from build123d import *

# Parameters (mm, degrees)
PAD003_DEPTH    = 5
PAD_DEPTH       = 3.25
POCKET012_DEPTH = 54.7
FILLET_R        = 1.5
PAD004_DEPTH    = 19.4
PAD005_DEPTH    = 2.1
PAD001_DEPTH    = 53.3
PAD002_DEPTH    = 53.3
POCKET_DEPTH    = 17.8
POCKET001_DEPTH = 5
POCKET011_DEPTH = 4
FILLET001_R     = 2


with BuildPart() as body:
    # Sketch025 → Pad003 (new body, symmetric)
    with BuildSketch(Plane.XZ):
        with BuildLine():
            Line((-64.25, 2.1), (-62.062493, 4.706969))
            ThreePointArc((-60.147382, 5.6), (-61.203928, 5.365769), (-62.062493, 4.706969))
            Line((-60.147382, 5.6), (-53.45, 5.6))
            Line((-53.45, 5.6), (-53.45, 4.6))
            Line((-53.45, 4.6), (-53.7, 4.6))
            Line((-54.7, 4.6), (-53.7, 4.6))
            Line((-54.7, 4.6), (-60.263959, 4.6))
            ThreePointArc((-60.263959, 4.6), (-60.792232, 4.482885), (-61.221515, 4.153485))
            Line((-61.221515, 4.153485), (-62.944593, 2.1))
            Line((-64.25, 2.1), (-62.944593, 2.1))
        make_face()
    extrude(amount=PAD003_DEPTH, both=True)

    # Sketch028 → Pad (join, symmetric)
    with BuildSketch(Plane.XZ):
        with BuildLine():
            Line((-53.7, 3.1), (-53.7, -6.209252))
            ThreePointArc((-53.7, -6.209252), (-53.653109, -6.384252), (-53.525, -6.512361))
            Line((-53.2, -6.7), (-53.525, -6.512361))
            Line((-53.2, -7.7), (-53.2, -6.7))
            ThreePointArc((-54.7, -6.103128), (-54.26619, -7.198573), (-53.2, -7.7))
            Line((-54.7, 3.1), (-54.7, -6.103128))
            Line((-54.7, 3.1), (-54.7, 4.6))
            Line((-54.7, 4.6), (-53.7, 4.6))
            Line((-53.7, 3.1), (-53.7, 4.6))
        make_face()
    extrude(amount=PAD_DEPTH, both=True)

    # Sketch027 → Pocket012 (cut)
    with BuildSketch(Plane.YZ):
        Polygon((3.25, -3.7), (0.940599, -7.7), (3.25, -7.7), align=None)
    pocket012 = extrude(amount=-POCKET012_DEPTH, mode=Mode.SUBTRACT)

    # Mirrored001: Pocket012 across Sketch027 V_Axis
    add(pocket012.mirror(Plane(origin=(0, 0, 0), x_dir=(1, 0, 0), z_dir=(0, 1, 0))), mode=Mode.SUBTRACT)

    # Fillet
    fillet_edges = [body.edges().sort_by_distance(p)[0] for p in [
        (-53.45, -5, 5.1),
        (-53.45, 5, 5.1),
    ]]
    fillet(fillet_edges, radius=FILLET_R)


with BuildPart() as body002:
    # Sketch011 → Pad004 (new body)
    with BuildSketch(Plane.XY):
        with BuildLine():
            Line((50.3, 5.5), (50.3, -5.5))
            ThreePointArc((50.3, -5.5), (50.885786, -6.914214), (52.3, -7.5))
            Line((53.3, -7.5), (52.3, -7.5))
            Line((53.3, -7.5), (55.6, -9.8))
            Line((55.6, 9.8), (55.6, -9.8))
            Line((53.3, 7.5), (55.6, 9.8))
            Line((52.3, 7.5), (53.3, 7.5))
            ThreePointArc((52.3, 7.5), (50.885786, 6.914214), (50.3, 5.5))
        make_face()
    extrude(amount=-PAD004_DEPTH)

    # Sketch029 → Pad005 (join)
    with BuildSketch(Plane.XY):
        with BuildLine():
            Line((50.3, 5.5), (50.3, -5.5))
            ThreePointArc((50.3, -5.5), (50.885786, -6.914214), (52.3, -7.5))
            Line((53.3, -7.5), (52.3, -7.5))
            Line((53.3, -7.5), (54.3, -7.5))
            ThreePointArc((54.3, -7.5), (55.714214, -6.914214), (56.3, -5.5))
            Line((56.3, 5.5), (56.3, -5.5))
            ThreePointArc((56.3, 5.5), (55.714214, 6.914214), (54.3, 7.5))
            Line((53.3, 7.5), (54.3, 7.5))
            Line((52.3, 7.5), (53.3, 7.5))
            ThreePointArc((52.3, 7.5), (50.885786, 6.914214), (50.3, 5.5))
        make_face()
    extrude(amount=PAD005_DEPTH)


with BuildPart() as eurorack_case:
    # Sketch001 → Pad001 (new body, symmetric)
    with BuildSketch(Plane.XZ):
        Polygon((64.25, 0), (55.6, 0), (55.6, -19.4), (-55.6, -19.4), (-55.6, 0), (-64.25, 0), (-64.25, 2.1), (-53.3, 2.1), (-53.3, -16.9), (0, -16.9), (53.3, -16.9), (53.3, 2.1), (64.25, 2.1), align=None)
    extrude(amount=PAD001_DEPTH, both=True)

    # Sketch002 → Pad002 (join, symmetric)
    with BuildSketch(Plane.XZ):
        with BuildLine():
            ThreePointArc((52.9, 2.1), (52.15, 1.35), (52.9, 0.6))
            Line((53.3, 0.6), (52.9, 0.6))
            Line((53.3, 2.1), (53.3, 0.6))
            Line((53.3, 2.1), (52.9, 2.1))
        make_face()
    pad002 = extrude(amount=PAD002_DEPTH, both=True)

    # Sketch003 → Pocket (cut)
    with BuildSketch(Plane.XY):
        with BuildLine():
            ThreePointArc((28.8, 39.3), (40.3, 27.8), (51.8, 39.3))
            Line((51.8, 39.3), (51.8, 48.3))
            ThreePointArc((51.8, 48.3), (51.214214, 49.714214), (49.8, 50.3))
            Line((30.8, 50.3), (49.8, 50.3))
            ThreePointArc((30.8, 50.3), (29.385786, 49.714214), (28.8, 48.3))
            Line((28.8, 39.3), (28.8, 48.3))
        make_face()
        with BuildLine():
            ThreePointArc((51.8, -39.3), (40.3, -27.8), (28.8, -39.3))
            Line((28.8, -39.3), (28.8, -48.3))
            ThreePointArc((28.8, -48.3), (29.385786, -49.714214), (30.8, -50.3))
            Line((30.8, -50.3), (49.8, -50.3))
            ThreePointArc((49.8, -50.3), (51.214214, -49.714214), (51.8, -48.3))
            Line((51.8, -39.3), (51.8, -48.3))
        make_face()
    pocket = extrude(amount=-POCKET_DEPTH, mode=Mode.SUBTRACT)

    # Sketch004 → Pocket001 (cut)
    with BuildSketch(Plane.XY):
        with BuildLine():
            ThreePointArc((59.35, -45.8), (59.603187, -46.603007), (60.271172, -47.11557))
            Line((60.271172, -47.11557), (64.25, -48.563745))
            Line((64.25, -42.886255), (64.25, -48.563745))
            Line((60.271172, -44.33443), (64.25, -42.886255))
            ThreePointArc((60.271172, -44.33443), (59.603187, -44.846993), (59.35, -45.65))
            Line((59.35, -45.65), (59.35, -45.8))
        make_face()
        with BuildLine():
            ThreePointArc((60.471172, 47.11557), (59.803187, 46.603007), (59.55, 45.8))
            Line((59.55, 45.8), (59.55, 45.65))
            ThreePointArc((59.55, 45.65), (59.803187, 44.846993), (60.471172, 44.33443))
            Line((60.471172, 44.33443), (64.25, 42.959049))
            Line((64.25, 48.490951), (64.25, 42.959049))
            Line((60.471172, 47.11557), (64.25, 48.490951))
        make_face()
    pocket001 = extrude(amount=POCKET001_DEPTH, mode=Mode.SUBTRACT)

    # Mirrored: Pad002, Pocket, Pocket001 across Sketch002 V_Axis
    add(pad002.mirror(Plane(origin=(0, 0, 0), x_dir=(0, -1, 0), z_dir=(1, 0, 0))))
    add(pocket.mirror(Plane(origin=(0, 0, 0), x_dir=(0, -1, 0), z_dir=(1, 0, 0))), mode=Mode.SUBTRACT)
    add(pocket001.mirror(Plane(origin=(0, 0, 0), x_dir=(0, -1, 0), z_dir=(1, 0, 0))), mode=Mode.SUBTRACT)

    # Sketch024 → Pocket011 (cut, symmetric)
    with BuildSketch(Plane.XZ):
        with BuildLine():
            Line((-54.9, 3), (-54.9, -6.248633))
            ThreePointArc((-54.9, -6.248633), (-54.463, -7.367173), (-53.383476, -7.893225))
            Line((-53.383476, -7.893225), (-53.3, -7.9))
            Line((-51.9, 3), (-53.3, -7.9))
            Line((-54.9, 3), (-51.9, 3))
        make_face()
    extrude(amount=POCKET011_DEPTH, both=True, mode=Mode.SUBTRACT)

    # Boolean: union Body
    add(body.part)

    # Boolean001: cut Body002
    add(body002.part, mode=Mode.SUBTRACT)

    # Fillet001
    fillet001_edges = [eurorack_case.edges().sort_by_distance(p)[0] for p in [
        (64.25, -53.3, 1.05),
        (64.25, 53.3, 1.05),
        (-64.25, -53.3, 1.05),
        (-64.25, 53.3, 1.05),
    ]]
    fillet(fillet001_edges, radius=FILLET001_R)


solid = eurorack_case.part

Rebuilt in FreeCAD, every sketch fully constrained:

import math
import FreeCAD as App
import Part
import Sketcher
Q = App.Units.Quantity


def edges_at(feature, points):
    """Names of the edges that pass closest to the given points."""
    edges = feature.Shape.Edges
    near = lambda p: min(range(len(edges)), key=lambda i: edges[i].distToShape(Part.Vertex(*p))[0])
    return sorted({f"Edge{near(p) + 1}" for p in points})


def add_polygon(sketch, points):
    """Adds a closed chain of lines whose ends are joined by coincident constraints."""
    first, n = sketch.GeometryCount, len(points)
    for a, b in zip(points, points[1:] + points[:1]):
        sketch.addGeometry(Part.LineSegment(App.Vector(*a, 0), App.Vector(*b, 0)), False)
    for i in range(n):
        sketch.addConstraint(Sketcher.Constraint("Coincident", first + i, 2, first + (i + 1) % n, 1))

doc = App.newDocument("Part")
body = doc.addObject("PartDesign::Body", "Body")

# Sketch on XZ plane
sketch1 = body.newObject("Sketcher::SketchObject", "Sketch")
sketch1.AttachmentSupport = (doc.getObject("XZ_Plane"), [""])
sketch1.MapMode = "FlatFace"
sketch1.addGeometry(Part.LineSegment(App.Vector(-62.1, 4.7, 0), App.Vector(-64.2, 2.1, 0)), False)
sketch1.addGeometry(Part.LineSegment(App.Vector(-64.2, 2.1, 0), App.Vector(-62.9, 2.1, 0)), False)
sketch1.addGeometry(Part.LineSegment(App.Vector(-62.9, 2.1, 0), App.Vector(-61.2, 4.2, 0)), False)
sketch1.addGeometry(Part.ArcOfCircle(Part.Circle(App.Vector(-60.3, 3.3, 0), App.Vector(0, 0, 1), 1.3), math.radians(90), math.radians(140)), False)
sketch1.addGeometry(Part.LineSegment(App.Vector(-60.3, 4.6, 0), App.Vector(-53.5, 4.6, 0)), False)
sketch1.addGeometry(Part.LineSegment(App.Vector(-53.5, 4.6, 0), App.Vector(-53.5, 5.6, 0)), False)
sketch1.addGeometry(Part.LineSegment(App.Vector(-53.5, 5.6, 0), App.Vector(-60.1, 5.6, 0)), False)
sketch1.addGeometry(Part.ArcOfCircle(Part.Circle(App.Vector(-60.1, 3.1, 0), App.Vector(0, 0, 1), 2.5), math.radians(90), math.radians(140)), False)
sketch1.addConstraint(Sketcher.Constraint("Coincident", 0, 2, 1, 1))
sketch1.addConstraint(Sketcher.Constraint("Coincident", 1, 2, 2, 1))
sketch1.addConstraint(Sketcher.Constraint("Tangent", 2, 2, 3, 2))
sketch1.addConstraint(Sketcher.Constraint("Tangent", 3, 1, 4, 1))
sketch1.addConstraint(Sketcher.Constraint("Coincident", 4, 2, 5, 1))
sketch1.addConstraint(Sketcher.Constraint("Coincident", 5, 2, 6, 1))
sketch1.addConstraint(Sketcher.Constraint("Tangent", 6, 2, 7, 1))
sketch1.addConstraint(Sketcher.Constraint("Tangent", 7, 2, 0, 1))
sketch1.addConstraint(Sketcher.Constraint("Horizontal", 1))
sketch1.addConstraint(Sketcher.Constraint("Horizontal", 4))
sketch1.addConstraint(Sketcher.Constraint("Vertical", 5))
sketch1.addConstraint(Sketcher.Constraint("Horizontal", 6))
sketch1.addConstraint(Sketcher.Constraint("Parallel", 0, 2))
sketch1.addConstraint(Sketcher.Constraint("DistanceY", 5, 1, 5, 2, Q("1 mm")))
sketch1.addConstraint(Sketcher.Constraint("Angle", 0, Q("-130.000004 deg")))
sketch1.addConstraint(Sketcher.Constraint("Radius", 3, Q("1.25 mm")))
sketch1.addConstraint(Sketcher.Constraint("DistanceY", -1, 1, 0, 2, Q("2.1 mm")))
sketch1.addConstraint(Sketcher.Constraint("DistanceY", -1, 1, 3, 1, Q("4.6 mm")))
sketch1.addConstraint(Sketcher.Constraint("DistanceX", 0, 2, -1, 1, Q("64.25 mm")))
sketch1.addConstraint(Sketcher.Constraint("DistanceX", 4, 2, -1, 1, Q("53.45 mm")))
sketch1.addConstraint(Sketcher.Constraint("DistanceY", 7, 3, 3, 3, Q("0.250002 mm")))
sketch1.addConstraint(Sketcher.Constraint("DistanceX", 4, 1, 4, 2, Q("6.813959 mm")))
pad1 = body.newObject("PartDesign::Pad", "Pad")
pad1.Profile = sketch1
pad1.Length = 10
pad1.Midplane = True

# Sketch on XZ plane
sketch2 = body.newObject("Sketcher::SketchObject", "Sketch001")
sketch2.AttachmentSupport = (doc.getObject("XZ_Plane"), [""])
sketch2.MapMode = "FlatFace"
sketch2.addGeometry(Part.LineSegment(App.Vector(-53.7, -6.21, 0), App.Vector(-53.7, 4.6, 0)), False)
sketch2.addGeometry(Part.LineSegment(App.Vector(-53.7, 4.6, 0), App.Vector(-54.7, 4.6, 0)), False)
sketch2.addGeometry(Part.LineSegment(App.Vector(-54.7, 4.6, 0), App.Vector(-54.7, -6.1, 0)), False)
sketch2.addGeometry(Part.ArcOfCircle(Part.Circle(App.Vector(-53.1, -6.1, 0), App.Vector(0, 0, 1), 1.6), math.radians(-180), math.radians(-94)), False)
sketch2.addGeometry(Part.LineSegment(App.Vector(-53.2, -7.7, 0), App.Vector(-53.2, -6.7, 0)), False)
sketch2.addGeometry(Part.LineSegment(App.Vector(-53.2, -6.7, 0), App.Vector(-53.52, -6.51, 0)), False)
sketch2.addGeometry(Part.ArcOfCircle(Part.Circle(App.Vector(-53.35, -6.21, 0), App.Vector(0, 0, 1), 0.35), math.radians(180), math.radians(240)), False)
sketch2.addConstraint(Sketcher.Constraint("Coincident", 0, 2, 1, 1))
sketch2.addConstraint(Sketcher.Constraint("Coincident", 1, 2, 2, 1))
sketch2.addConstraint(Sketcher.Constraint("Tangent", 2, 2, 3, 1))
sketch2.addConstraint(Sketcher.Constraint("Coincident", 3, 2, 4, 1))
sketch2.addConstraint(Sketcher.Constraint("Coincident", 4, 2, 5, 1))
sketch2.addConstraint(Sketcher.Constraint("Tangent", 5, 2, 6, 2))
sketch2.addConstraint(Sketcher.Constraint("Tangent", 6, 1, 0, 1))
sketch2.addConstraint(Sketcher.Constraint("Vertical", 0))
sketch2.addConstraint(Sketcher.Constraint("Horizontal", 1))
sketch2.addConstraint(Sketcher.Constraint("Vertical", 2))
sketch2.addConstraint(Sketcher.Constraint("Vertical", 4))
sketch2.addConstraint(Sketcher.Constraint("Equal", 1, 4))
sketch2.addConstraint(Sketcher.Constraint("Radius", 3, Q("1.600001 mm")))
sketch2.addConstraint(Sketcher.Constraint("DistanceX", 1, 2, 1, 1, Q("1 mm")))
sketch2.addConstraint(Sketcher.Constraint("Radius", 6, Q("0.35 mm")))
sketch2.addConstraint(Sketcher.Constraint("DistanceX", 3, 3, -1, 1, Q("53.099999 mm")))
sketch2.addConstraint(Sketcher.Constraint("DistanceY", -1, 1, 0, 2, Q("4.6 mm")))
sketch2.addConstraint(Sketcher.Constraint("DistanceX", 3, 2, -1, 1, Q("53.2 mm")))
sketch2.addConstraint(Sketcher.Constraint("DistanceY", 3, 2, -1, 1, Q("7.7 mm")))
sketch2.addConstraint(Sketcher.Constraint("DistanceX", 5, 2, -1, 1, Q("53.525 mm")))
pad2 = body.newObject("PartDesign::Pad", "Pad001")
pad2.Profile = sketch2
pad2.Length = 6.5
pad2.Midplane = True

# Sketch on YZ plane
sketch3 = body.newObject("Sketcher::SketchObject", "Sketch002")
sketch3.AttachmentSupport = (doc.getObject("YZ_Plane"), [""])
sketch3.MapMode = "FlatFace"
add_polygon(sketch3, [(3.2, -3.7), (0.9, -7.7), (3.2, -7.7)])  # lines 0-2
sketch3.addConstraint(Sketcher.Constraint("Horizontal", 1))
sketch3.addConstraint(Sketcher.Constraint("Vertical", 2))
sketch3.addConstraint(Sketcher.Constraint("DistanceY", 2, 1, 2, 2, Q("4 mm")))
sketch3.addConstraint(Sketcher.Constraint("Angle", 0, Q("-119.999999 deg")))
sketch3.addConstraint(Sketcher.Constraint("DistanceY", 0, 2, -1, 1, Q("7.7 mm")))
sketch3.addConstraint(Sketcher.Constraint("DistanceX", -1, 1, 1, 2, Q("3.25 mm")))
pocket1 = body.newObject("PartDesign::Pocket", "Pocket")
pocket1.Profile = sketch3
pocket1.Length = 54.7
doc.recompute()

mirrored = body.newObject("PartDesign::Mirrored", "Mirrored")
mirrored.Originals = [pocket1]
mirrored.MirrorPlane = (doc.getObject("XZ_Plane"), [""])
body.Tip = mirrored
doc.recompute()

fillet = body.newObject("PartDesign::Fillet", "Fillet")
fillet.Base = (mirrored, edges_at(mirrored, [(-53.45, -5, 5.1), (-53.45, 5, 5.1)]))
fillet.Radius = 1.5
body2 = doc.addObject("PartDesign::Body", "Body001")

# Sketch on XY plane
sketch4 = body2.newObject("Sketcher::SketchObject", "Sketch003")
sketch4.AttachmentSupport = (doc.getObject("XY_Plane001"), [""])
sketch4.MapMode = "FlatFace"
sketch4.addGeometry(Part.LineSegment(App.Vector(50.3, 5.5, 0), App.Vector(50.3, -5.5, 0)), False)
sketch4.addGeometry(Part.ArcOfCircle(Part.Circle(App.Vector(52.3, -5.5, 0), App.Vector(0, 0, 1), 2), math.radians(180), math.radians(270)), False)
sketch4.addGeometry(Part.LineSegment(App.Vector(52.3, -7.5, 0), App.Vector(53.3, -7.5, 0)), False)
sketch4.addGeometry(Part.LineSegment(App.Vector(53.3, -7.5, 0), App.Vector(55.6, -9.8, 0)), False)
sketch4.addGeometry(Part.LineSegment(App.Vector(55.6, -9.8, 0), App.Vector(55.6, 9.8, 0)), False)
sketch4.addGeometry(Part.LineSegment(App.Vector(55.6, 9.8, 0), App.Vector(53.3, 7.5, 0)), False)
sketch4.addGeometry(Part.LineSegment(App.Vector(53.3, 7.5, 0), App.Vector(52.3, 7.5, 0)), False)
sketch4.addGeometry(Part.ArcOfCircle(Part.Circle(App.Vector(52.3, 5.5, 0), App.Vector(0, 0, 1), 2), math.radians(90), math.radians(180)), False)
sketch4.addConstraint(Sketcher.Constraint("Tangent", 0, 2, 1, 1))
sketch4.addConstraint(Sketcher.Constraint("Tangent", 1, 2, 2, 1))
sketch4.addConstraint(Sketcher.Constraint("Coincident", 2, 2, 3, 1))
sketch4.addConstraint(Sketcher.Constraint("Coincident", 3, 2, 4, 1))
sketch4.addConstraint(Sketcher.Constraint("Coincident", 4, 2, 5, 1))
sketch4.addConstraint(Sketcher.Constraint("Coincident", 5, 2, 6, 1))
sketch4.addConstraint(Sketcher.Constraint("Tangent", 6, 2, 7, 1))
sketch4.addConstraint(Sketcher.Constraint("Tangent", 7, 2, 0, 1))
sketch4.addConstraint(Sketcher.Constraint("Vertical", 0))
sketch4.addConstraint(Sketcher.Constraint("Horizontal", 2))
sketch4.addConstraint(Sketcher.Constraint("Vertical", 4))
sketch4.addConstraint(Sketcher.Constraint("Horizontal", 6))
sketch4.addConstraint(Sketcher.Constraint("Equal", 1, 7))
sketch4.addConstraint(Sketcher.Constraint("Symmetric", 2, 2, 5, 2, -1))
sketch4.addConstraint(Sketcher.Constraint("Perpendicular", 3, 5))
sketch4.addConstraint(Sketcher.Constraint("Equal", 3, 5))
sketch4.addConstraint(Sketcher.Constraint("Radius", 1, Q("1.999999 mm")))
sketch4.addConstraint(Sketcher.Constraint("DistanceX", 2, 1, 2, 2, Q("1 mm")))
sketch4.addConstraint(Sketcher.Constraint("DistanceY", 0, 2, 0, 1, Q("11 mm")))
sketch4.addConstraint(Sketcher.Constraint("DistanceY", 4, 1, 4, 2, Q("19.6 mm")))
sketch4.addConstraint(Sketcher.Constraint("DistanceX", -1, 1, 1, 3, Q("52.299999 mm")))
pad3 = body2.newObject("PartDesign::Pad", "Pad002")
pad3.Profile = sketch4
pad3.Length = 19.4
pad3.Reversed = True

# Sketch on XY plane
sketch5 = body2.newObject("Sketcher::SketchObject", "Sketch004")
sketch5.AttachmentSupport = (doc.getObject("XY_Plane001"), [""])
sketch5.MapMode = "FlatFace"
sketch5.addGeometry(Part.LineSegment(App.Vector(50.3, 5.5, 0), App.Vector(50.3, -5.5, 0)), False)
sketch5.addGeometry(Part.ArcOfCircle(Part.Circle(App.Vector(52.3, -5.5, 0), App.Vector(0, 0, 1), 2), math.radians(180), math.radians(270)), False)
sketch5.addGeometry(Part.LineSegment(App.Vector(52.3, -7.5, 0), App.Vector(54.3, -7.5, 0)), False)
sketch5.addGeometry(Part.ArcOfCircle(Part.Circle(App.Vector(54.3, -5.5, 0), App.Vector(0, 0, 1), 2), math.radians(-90), math.radians(0)), False)
sketch5.addGeometry(Part.LineSegment(App.Vector(56.3, -5.5, 0), App.Vector(56.3, 5.5, 0)), False)
sketch5.addGeometry(Part.ArcOfCircle(Part.Circle(App.Vector(54.3, 5.5, 0), App.Vector(0, 0, 1), 2), math.radians(0), math.radians(90)), False)
sketch5.addGeometry(Part.LineSegment(App.Vector(54.3, 7.5, 0), App.Vector(52.3, 7.5, 0)), False)
sketch5.addGeometry(Part.ArcOfCircle(Part.Circle(App.Vector(52.3, 5.5, 0), App.Vector(0, 0, 1), 2), math.radians(90), math.radians(180)), False)
sketch5.addConstraint(Sketcher.Constraint("Tangent", 0, 2, 1, 1))
sketch5.addConstraint(Sketcher.Constraint("Tangent", 1, 2, 2, 1))
sketch5.addConstraint(Sketcher.Constraint("Tangent", 2, 2, 3, 1))
sketch5.addConstraint(Sketcher.Constraint("Tangent", 3, 2, 4, 1))
sketch5.addConstraint(Sketcher.Constraint("Tangent", 4, 2, 5, 1))
sketch5.addConstraint(Sketcher.Constraint("Tangent", 5, 2, 6, 1))
sketch5.addConstraint(Sketcher.Constraint("Tangent", 6, 2, 7, 1))
sketch5.addConstraint(Sketcher.Constraint("Tangent", 7, 2, 0, 1))
sketch5.addConstraint(Sketcher.Constraint("Vertical", 0))
sketch5.addConstraint(Sketcher.Constraint("Horizontal", 2))
sketch5.addConstraint(Sketcher.Constraint("Vertical", 4))
sketch5.addConstraint(Sketcher.Constraint("Horizontal", 6))
sketch5.addConstraint(Sketcher.Constraint("Equal", 1, 3))
sketch5.addConstraint(Sketcher.Constraint("Equal", 3, 5))
sketch5.addConstraint(Sketcher.Constraint("Equal", 5, 7))
sketch5.addConstraint(Sketcher.Constraint("Radius", 1, Q("1.999999 mm")))
sketch5.addConstraint(Sketcher.Constraint("DistanceX", 2, 1, 2, 2, Q("2 mm")))
sketch5.addConstraint(Sketcher.Constraint("DistanceY", 0, 2, 0, 1, Q("11 mm")))
sketch5.addConstraint(Sketcher.Constraint("DistanceX", -1, 1, 1, 3, Q("52.299999 mm")))
sketch5.addConstraint(Sketcher.Constraint("DistanceY", 1, 3, -1, 1, Q("5.500001 mm")))
pad4 = body2.newObject("PartDesign::Pad", "Pad003")
pad4.Profile = sketch5
pad4.Length = 2.1
body3 = doc.addObject("PartDesign::Body", "Body002")

# Sketch on XZ plane
sketch6 = body3.newObject("Sketcher::SketchObject", "Sketch005")
sketch6.AttachmentSupport = (doc.getObject("XZ_Plane002"), [""])
sketch6.MapMode = "FlatFace"
add_polygon(sketch6, [(55.6, 0), (64.2, 0), (64.2, 2.1), (53.3, 2.1), (53.3, -16.9), (-53.3, -16.9), (-53.3, 2.1), (-64.2, 2.1), (-64.2, 0), (-55.6, 0), (-55.6, -19.4), (55.6, -19.4)])  # lines 0-11
sketch6.addConstraint(Sketcher.Constraint("Horizontal", 0))
sketch6.addConstraint(Sketcher.Constraint("Vertical", 1))
sketch6.addConstraint(Sketcher.Constraint("Horizontal", 2))
sketch6.addConstraint(Sketcher.Constraint("Vertical", 3))
sketch6.addConstraint(Sketcher.Constraint("Horizontal", 4))
sketch6.addConstraint(Sketcher.Constraint("Vertical", 5))
sketch6.addConstraint(Sketcher.Constraint("Horizontal", 6))
sketch6.addConstraint(Sketcher.Constraint("Vertical", 7))
sketch6.addConstraint(Sketcher.Constraint("Horizontal", 8))
sketch6.addConstraint(Sketcher.Constraint("Vertical", 9))
sketch6.addConstraint(Sketcher.Constraint("Horizontal", 10))
sketch6.addConstraint(Sketcher.Constraint("Vertical", 11))
sketch6.addConstraint(Sketcher.Constraint("Symmetric", 0, 2, 7, 2, -1, 1))
sketch6.addConstraint(Sketcher.Constraint("Symmetric", 2, 2, 5, 2, -2))
sketch6.addConstraint(Sketcher.Constraint("Symmetric", 8, 2, 11, 2, -2))
sketch6.addConstraint(Sketcher.Constraint("DistanceY", 3, 2, 3, 1, Q("19 mm")))
sketch6.addConstraint(Sketcher.Constraint("DistanceX", 4, 2, 4, 1, Q("106.6 mm")))
sketch6.addConstraint(Sketcher.Constraint("DistanceX", 10, 1, 10, 2, Q("111.2 mm")))
sketch6.addConstraint(Sketcher.Constraint("DistanceY", 1, 1, 1, 2, Q("2.1 mm")))
sketch6.addConstraint(Sketcher.Constraint("DistanceY", 9, 2, 9, 1, Q("19.4 mm")))
sketch6.addConstraint(Sketcher.Constraint("DistanceX", 0, 1, 0, 2, Q("8.65 mm")))
pad5 = body3.newObject("PartDesign::Pad", "Pad004")
pad5.Profile = sketch6
pad5.Length = 106.6
pad5.Midplane = True

# Sketch on XZ plane
sketch7 = body3.newObject("Sketcher::SketchObject", "Sketch006")
sketch7.AttachmentSupport = (doc.getObject("XZ_Plane002"), [""])
sketch7.MapMode = "FlatFace"
sketch7.addGeometry(Part.ArcOfCircle(Part.Circle(App.Vector(52.9, 1.35, 0), App.Vector(0, 0, 1), 0.75), math.radians(90), math.radians(270)), False)
sketch7.addGeometry(Part.LineSegment(App.Vector(52.9, 0.6, 0), App.Vector(53.3, 0.6, 0)), False)
sketch7.addGeometry(Part.LineSegment(App.Vector(53.3, 0.6, 0), App.Vector(53.3, 2.1, 0)), False)
sketch7.addGeometry(Part.LineSegment(App.Vector(53.3, 2.1, 0), App.Vector(52.9, 2.1, 0)), False)
sketch7.addConstraint(Sketcher.Constraint("Tangent", 0, 2, 1, 1))
sketch7.addConstraint(Sketcher.Constraint("Coincident", 1, 2, 2, 1))
sketch7.addConstraint(Sketcher.Constraint("Coincident", 2, 2, 3, 1))
sketch7.addConstraint(Sketcher.Constraint("Tangent", 3, 2, 0, 1))
sketch7.addConstraint(Sketcher.Constraint("Horizontal", 1))
sketch7.addConstraint(Sketcher.Constraint("Vertical", 2))
sketch7.addConstraint(Sketcher.Constraint("Horizontal", 3))
sketch7.addConstraint(Sketcher.Constraint("Radius", 0, Q("0.75 mm")))
sketch7.addConstraint(Sketcher.Constraint("DistanceX", 1, 1, 1, 2, Q("0.4 mm")))
sketch7.addConstraint(Sketcher.Constraint("DistanceX", -1, 1, 0, 3, Q("52.9 mm")))
sketch7.addConstraint(Sketcher.Constraint("DistanceY", -1, 1, 0, 2, Q("0.6 mm")))
pad6 = body3.newObject("PartDesign::Pad", "Pad005")
pad6.Profile = sketch7
pad6.Length = 106.6
pad6.Midplane = True

# Sketch on XY plane
sketch8 = body3.newObject("Sketcher::SketchObject", "Sketch007")
sketch8.AttachmentSupport = (doc.getObject("XY_Plane002"), [""])
sketch8.MapMode = "FlatFace"
sketch8.addGeometry(Part.ArcOfCircle(Part.Circle(App.Vector(40.3, 39.3, 0), App.Vector(0, 0, 1), 11.5), math.radians(180), math.radians(360)), False)
sketch8.addGeometry(Part.LineSegment(App.Vector(51.8, 39.3, 0), App.Vector(51.8, 48.3, 0)), False)
sketch8.addGeometry(Part.ArcOfCircle(Part.Circle(App.Vector(49.8, 48.3, 0), App.Vector(0, 0, 1), 2), math.radians(0), math.radians(90)), False)
sketch8.addGeometry(Part.LineSegment(App.Vector(49.8, 50.3, 0), App.Vector(30.8, 50.3, 0)), False)
sketch8.addGeometry(Part.ArcOfCircle(Part.Circle(App.Vector(30.8, 48.3, 0), App.Vector(0, 0, 1), 2), math.radians(90), math.radians(180)), False)
sketch8.addGeometry(Part.LineSegment(App.Vector(28.8, 48.3, 0), App.Vector(28.8, 39.3, 0)), False)
sketch8.addGeometry(Part.ArcOfCircle(Part.Circle(App.Vector(40.3, -39.3, 0), App.Vector(0, 0, 1), 11.5), math.radians(0), math.radians(180)), False)
sketch8.addGeometry(Part.LineSegment(App.Vector(28.8, -39.3, 0), App.Vector(28.8, -48.3, 0)), False)
sketch8.addGeometry(Part.ArcOfCircle(Part.Circle(App.Vector(30.8, -48.3, 0), App.Vector(0, 0, 1), 2), math.radians(180), math.radians(270)), False)
sketch8.addGeometry(Part.LineSegment(App.Vector(30.8, -50.3, 0), App.Vector(49.8, -50.3, 0)), False)
sketch8.addGeometry(Part.ArcOfCircle(Part.Circle(App.Vector(49.8, -48.3, 0), App.Vector(0, 0, 1), 2), math.radians(-90), math.radians(0)), False)
sketch8.addGeometry(Part.LineSegment(App.Vector(51.8, -48.3, 0), App.Vector(51.8, -39.3, 0)), False)
sketch8.addConstraint(Sketcher.Constraint("Tangent", 0, 2, 1, 1))
sketch8.addConstraint(Sketcher.Constraint("Tangent", 1, 2, 2, 1))
sketch8.addConstraint(Sketcher.Constraint("Tangent", 2, 2, 3, 1))
sketch8.addConstraint(Sketcher.Constraint("Tangent", 3, 2, 4, 1))
sketch8.addConstraint(Sketcher.Constraint("Tangent", 4, 2, 5, 1))
sketch8.addConstraint(Sketcher.Constraint("Tangent", 5, 2, 0, 1))
sketch8.addConstraint(Sketcher.Constraint("Tangent", 6, 2, 7, 1))
sketch8.addConstraint(Sketcher.Constraint("Tangent", 7, 2, 8, 1))
sketch8.addConstraint(Sketcher.Constraint("Tangent", 8, 2, 9, 1))
sketch8.addConstraint(Sketcher.Constraint("Tangent", 9, 2, 10, 1))
sketch8.addConstraint(Sketcher.Constraint("Tangent", 10, 2, 11, 1))
sketch8.addConstraint(Sketcher.Constraint("Tangent", 11, 2, 6, 1))
sketch8.addConstraint(Sketcher.Constraint("Vertical", 1))
sketch8.addConstraint(Sketcher.Constraint("Horizontal", 3))
sketch8.addConstraint(Sketcher.Constraint("Vertical", 5))
sketch8.addConstraint(Sketcher.Constraint("Vertical", 7))
sketch8.addConstraint(Sketcher.Constraint("Horizontal", 9))
sketch8.addConstraint(Sketcher.Constraint("Vertical", 11))
sketch8.addConstraint(Sketcher.Constraint("Equal", 2, 4))
sketch8.addConstraint(Sketcher.Constraint("Equal", 0, 6))
sketch8.addConstraint(Sketcher.Constraint("Equal", 4, 8))
sketch8.addConstraint(Sketcher.Constraint("Equal", 8, 10))
sketch8.addConstraint(Sketcher.Constraint("Symmetric", 0, 3, 6, 3, -1))
sketch8.addConstraint(Sketcher.Constraint("Equal", 5, 7))
sketch8.addConstraint(Sketcher.Constraint("Radius", 2, Q("1.999999 mm")))
sketch8.addConstraint(Sketcher.Constraint("Radius", 0, Q("11.5 mm")))
sketch8.addConstraint(Sketcher.Constraint("DistanceY", 1, 1, 1, 2, Q("9 mm")))
sketch8.addConstraint(Sketcher.Constraint("DistanceX", -1, 1, 0, 3, Q("40.3 mm")))
sketch8.addConstraint(Sketcher.Constraint("DistanceY", -1, 1, 0, 3, Q("39.3 mm")))
pocket2 = body3.newObject("PartDesign::Pocket", "Pocket001")
pocket2.Profile = sketch8
pocket2.Length = 17.8

# Sketch on XY plane
sketch9 = body3.newObject("Sketcher::SketchObject", "Sketch008")
sketch9.AttachmentSupport = (doc.getObject("XY_Plane002"), [""])
sketch9.MapMode = "FlatFace"
sketch9.addGeometry(Part.ArcOfCircle(Part.Circle(App.Vector(60.75, -45.8, 0), App.Vector(0, 0, 1), 1.4), math.radians(180), math.radians(250)), False)
sketch9.addGeometry(Part.LineSegment(App.Vector(60.27, -47.12, 0), App.Vector(64.25, -48.56, 0)), False)
sketch9.addGeometry(Part.LineSegment(App.Vector(64.25, -48.56, 0), App.Vector(64.25, -42.89, 0)), False)
sketch9.addGeometry(Part.LineSegment(App.Vector(64.25, -42.89, 0), App.Vector(60.27, -44.33, 0)), False)
sketch9.addGeometry(Part.ArcOfCircle(Part.Circle(App.Vector(60.75, -45.65, 0), App.Vector(0, 0, 1), 1.4), math.radians(110), math.radians(180)), False)
sketch9.addGeometry(Part.LineSegment(App.Vector(59.35, -45.65, 0), App.Vector(59.35, -45.8, 0)), False)
sketch9.addGeometry(Part.ArcOfCircle(Part.Circle(App.Vector(60.95, 45.8, 0), App.Vector(0, 0, 1), 1.4), math.radians(110), math.radians(180)), False)
sketch9.addGeometry(Part.LineSegment(App.Vector(59.55, 45.8, 0), App.Vector(59.55, 45.65, 0)), False)
sketch9.addGeometry(Part.ArcOfCircle(Part.Circle(App.Vector(60.95, 45.65, 0), App.Vector(0, 0, 1), 1.4), math.radians(180), math.radians(250)), False)
sketch9.addGeometry(Part.LineSegment(App.Vector(60.47, 44.33, 0), App.Vector(64.25, 42.96, 0)), False)
sketch9.addGeometry(Part.LineSegment(App.Vector(64.25, 42.96, 0), App.Vector(64.25, 48.49, 0)), False)
sketch9.addGeometry(Part.LineSegment(App.Vector(64.25, 48.49, 0), App.Vector(60.47, 47.12, 0)), False)
sketch9.addConstraint(Sketcher.Constraint("Tangent", 0, 2, 1, 1))
sketch9.addConstraint(Sketcher.Constraint("Coincident", 1, 2, 2, 1))
sketch9.addConstraint(Sketcher.Constraint("Coincident", 2, 2, 3, 1))
sketch9.addConstraint(Sketcher.Constraint("Tangent", 3, 2, 4, 1))
sketch9.addConstraint(Sketcher.Constraint("Tangent", 4, 2, 5, 1))
sketch9.addConstraint(Sketcher.Constraint("Tangent", 5, 2, 0, 1))
sketch9.addConstraint(Sketcher.Constraint("Tangent", 6, 2, 7, 1))
sketch9.addConstraint(Sketcher.Constraint("Tangent", 7, 2, 8, 1))
sketch9.addConstraint(Sketcher.Constraint("Tangent", 8, 2, 9, 1))
sketch9.addConstraint(Sketcher.Constraint("Coincident", 9, 2, 10, 1))
sketch9.addConstraint(Sketcher.Constraint("Coincident", 10, 2, 11, 1))
sketch9.addConstraint(Sketcher.Constraint("Tangent", 11, 2, 6, 1))
sketch9.addConstraint(Sketcher.Constraint("Vertical", 2))
sketch9.addConstraint(Sketcher.Constraint("Vertical", 5))
sketch9.addConstraint(Sketcher.Constraint("Vertical", 7))
sketch9.addConstraint(Sketcher.Constraint("Vertical", 10))
sketch9.addConstraint(Sketcher.Constraint("Equal", 0, 4))
sketch9.addConstraint(Sketcher.Constraint("Equal", 4, 6))
sketch9.addConstraint(Sketcher.Constraint("Equal", 6, 8))
sketch9.addConstraint(Sketcher.Constraint("Parallel", 1, 9))
sketch9.addConstraint(Sketcher.Constraint("Parallel", 3, 11))
sketch9.addConstraint(Sketcher.Constraint("Vertical", 0, 2, 3, 2))
sketch9.addConstraint(Sketcher.Constraint("Vertical", 2, 2, 9, 2))
sketch9.addConstraint(Sketcher.Constraint("Equal", 5, 7))
sketch9.addConstraint(Sketcher.Constraint("Radius", 0, Q("1.4 mm")))
sketch9.addConstraint(Sketcher.Constraint("Angle", 1, Q("-20.000001 deg")))
sketch9.addConstraint(Sketcher.Constraint("DistanceY", 5, 2, 5, 1, Q("0.15 mm")))
sketch9.addConstraint(Sketcher.Constraint("DistanceY", 0, 3, -1, 1, Q("45.8 mm")))
sketch9.addConstraint(Sketcher.Constraint("DistanceY", -1, 1, 6, 3, Q("45.8 mm")))
sketch9.addConstraint(Sketcher.Constraint("DistanceX", 4, 3, 6, 3, Q("0.2 mm")))
sketch9.addConstraint(Sketcher.Constraint("DistanceX", 0, 3, 1, 2, Q("3.5 mm")))
sketch9.addConstraint(Sketcher.Constraint("DistanceX", -1, 1, 0, 3, Q("60.75 mm")))
pocket3 = body3.newObject("PartDesign::Pocket", "Pocket002")
pocket3.Profile = sketch9
pocket3.Length = 5
pocket3.Reversed = True
doc.recompute()

mirrored2 = body3.newObject("PartDesign::Mirrored", "Mirrored001")
mirrored2.Originals = [pad6, pocket2, pocket3]
mirrored2.MirrorPlane = (doc.getObject("YZ_Plane002"), [""])
body3.Tip = mirrored2

# Sketch on XZ plane
sketch10 = body3.newObject("Sketcher::SketchObject", "Sketch009")
sketch10.AttachmentSupport = (doc.getObject("XZ_Plane002"), [""])
sketch10.MapMode = "FlatFace"
sketch10.addGeometry(Part.LineSegment(App.Vector(-54.9, 3, 0), App.Vector(-54.9, -6.25, 0)), False)
sketch10.addGeometry(Part.ArcOfCircle(Part.Circle(App.Vector(-53.25, -6.25, 0), App.Vector(0, 0, 1), 1.65), math.radians(180), math.radians(265)), False)
sketch10.addGeometry(Part.LineSegment(App.Vector(-53.38, -7.89, 0), App.Vector(-53.3, -7.9, 0)), False)
sketch10.addGeometry(Part.LineSegment(App.Vector(-53.3, -7.9, 0), App.Vector(-51.9, 3, 0)), False)
sketch10.addGeometry(Part.LineSegment(App.Vector(-51.9, 3, 0), App.Vector(-54.9, 3, 0)), False)
sketch10.addConstraint(Sketcher.Constraint("Tangent", 0, 2, 1, 1))
sketch10.addConstraint(Sketcher.Constraint("Tangent", 1, 2, 2, 1))
sketch10.addConstraint(Sketcher.Constraint("Coincident", 2, 2, 3, 1))
sketch10.addConstraint(Sketcher.Constraint("Coincident", 3, 2, 4, 1))
sketch10.addConstraint(Sketcher.Constraint("Coincident", 4, 2, 0, 1))
sketch10.addConstraint(Sketcher.Constraint("Vertical", 0))
sketch10.addConstraint(Sketcher.Constraint("Horizontal", 4))
sketch10.addConstraint(Sketcher.Constraint("DistanceX", 4, 2, 4, 1, Q("3 mm")))
sketch10.addConstraint(Sketcher.Constraint("Radius", 1, Q("1.649999 mm")))
sketch10.addConstraint(Sketcher.Constraint("DistanceY", -1, 1, 3, 2, Q("3 mm")))
sketch10.addConstraint(Sketcher.Constraint("DistanceX", 0, 2, -1, 1, Q("54.9 mm")))
sketch10.addConstraint(Sketcher.Constraint("DistanceX", 2, 2, -1, 1, Q("53.3 mm")))
sketch10.addConstraint(Sketcher.Constraint("DistanceY", 2, 2, -1, 1, Q("7.9 mm")))
sketch10.addConstraint(Sketcher.Constraint("Angle", 2, Q("-4.640015 deg")))
pocket4 = body3.newObject("PartDesign::Pocket", "Pocket003")
pocket4.Profile = sketch10
pocket4.Length = 8
pocket4.Midplane = True
doc.recompute()

boolean = body3.newObject("PartDesign::Boolean", "Boolean")
boolean.Type = "Fuse"
boolean.addObjects([body])
doc.recompute()

boolean2 = body3.newObject("PartDesign::Boolean", "Boolean001")
boolean2.Type = "Cut"
boolean2.addObjects([body2])
doc.recompute()

fillet2 = body3.newObject("PartDesign::Fillet", "Fillet001")
fillet2.Base = (boolean2, edges_at(boolean2, [
    (64.25, -53.3, 1.05),
    (64.25, 53.3, 1.05),
    (-64.25, -53.3, 1.05),
    (-64.25, 53.3, 1.05),
]))
fillet2.Radius = 2

doc.recompute()
